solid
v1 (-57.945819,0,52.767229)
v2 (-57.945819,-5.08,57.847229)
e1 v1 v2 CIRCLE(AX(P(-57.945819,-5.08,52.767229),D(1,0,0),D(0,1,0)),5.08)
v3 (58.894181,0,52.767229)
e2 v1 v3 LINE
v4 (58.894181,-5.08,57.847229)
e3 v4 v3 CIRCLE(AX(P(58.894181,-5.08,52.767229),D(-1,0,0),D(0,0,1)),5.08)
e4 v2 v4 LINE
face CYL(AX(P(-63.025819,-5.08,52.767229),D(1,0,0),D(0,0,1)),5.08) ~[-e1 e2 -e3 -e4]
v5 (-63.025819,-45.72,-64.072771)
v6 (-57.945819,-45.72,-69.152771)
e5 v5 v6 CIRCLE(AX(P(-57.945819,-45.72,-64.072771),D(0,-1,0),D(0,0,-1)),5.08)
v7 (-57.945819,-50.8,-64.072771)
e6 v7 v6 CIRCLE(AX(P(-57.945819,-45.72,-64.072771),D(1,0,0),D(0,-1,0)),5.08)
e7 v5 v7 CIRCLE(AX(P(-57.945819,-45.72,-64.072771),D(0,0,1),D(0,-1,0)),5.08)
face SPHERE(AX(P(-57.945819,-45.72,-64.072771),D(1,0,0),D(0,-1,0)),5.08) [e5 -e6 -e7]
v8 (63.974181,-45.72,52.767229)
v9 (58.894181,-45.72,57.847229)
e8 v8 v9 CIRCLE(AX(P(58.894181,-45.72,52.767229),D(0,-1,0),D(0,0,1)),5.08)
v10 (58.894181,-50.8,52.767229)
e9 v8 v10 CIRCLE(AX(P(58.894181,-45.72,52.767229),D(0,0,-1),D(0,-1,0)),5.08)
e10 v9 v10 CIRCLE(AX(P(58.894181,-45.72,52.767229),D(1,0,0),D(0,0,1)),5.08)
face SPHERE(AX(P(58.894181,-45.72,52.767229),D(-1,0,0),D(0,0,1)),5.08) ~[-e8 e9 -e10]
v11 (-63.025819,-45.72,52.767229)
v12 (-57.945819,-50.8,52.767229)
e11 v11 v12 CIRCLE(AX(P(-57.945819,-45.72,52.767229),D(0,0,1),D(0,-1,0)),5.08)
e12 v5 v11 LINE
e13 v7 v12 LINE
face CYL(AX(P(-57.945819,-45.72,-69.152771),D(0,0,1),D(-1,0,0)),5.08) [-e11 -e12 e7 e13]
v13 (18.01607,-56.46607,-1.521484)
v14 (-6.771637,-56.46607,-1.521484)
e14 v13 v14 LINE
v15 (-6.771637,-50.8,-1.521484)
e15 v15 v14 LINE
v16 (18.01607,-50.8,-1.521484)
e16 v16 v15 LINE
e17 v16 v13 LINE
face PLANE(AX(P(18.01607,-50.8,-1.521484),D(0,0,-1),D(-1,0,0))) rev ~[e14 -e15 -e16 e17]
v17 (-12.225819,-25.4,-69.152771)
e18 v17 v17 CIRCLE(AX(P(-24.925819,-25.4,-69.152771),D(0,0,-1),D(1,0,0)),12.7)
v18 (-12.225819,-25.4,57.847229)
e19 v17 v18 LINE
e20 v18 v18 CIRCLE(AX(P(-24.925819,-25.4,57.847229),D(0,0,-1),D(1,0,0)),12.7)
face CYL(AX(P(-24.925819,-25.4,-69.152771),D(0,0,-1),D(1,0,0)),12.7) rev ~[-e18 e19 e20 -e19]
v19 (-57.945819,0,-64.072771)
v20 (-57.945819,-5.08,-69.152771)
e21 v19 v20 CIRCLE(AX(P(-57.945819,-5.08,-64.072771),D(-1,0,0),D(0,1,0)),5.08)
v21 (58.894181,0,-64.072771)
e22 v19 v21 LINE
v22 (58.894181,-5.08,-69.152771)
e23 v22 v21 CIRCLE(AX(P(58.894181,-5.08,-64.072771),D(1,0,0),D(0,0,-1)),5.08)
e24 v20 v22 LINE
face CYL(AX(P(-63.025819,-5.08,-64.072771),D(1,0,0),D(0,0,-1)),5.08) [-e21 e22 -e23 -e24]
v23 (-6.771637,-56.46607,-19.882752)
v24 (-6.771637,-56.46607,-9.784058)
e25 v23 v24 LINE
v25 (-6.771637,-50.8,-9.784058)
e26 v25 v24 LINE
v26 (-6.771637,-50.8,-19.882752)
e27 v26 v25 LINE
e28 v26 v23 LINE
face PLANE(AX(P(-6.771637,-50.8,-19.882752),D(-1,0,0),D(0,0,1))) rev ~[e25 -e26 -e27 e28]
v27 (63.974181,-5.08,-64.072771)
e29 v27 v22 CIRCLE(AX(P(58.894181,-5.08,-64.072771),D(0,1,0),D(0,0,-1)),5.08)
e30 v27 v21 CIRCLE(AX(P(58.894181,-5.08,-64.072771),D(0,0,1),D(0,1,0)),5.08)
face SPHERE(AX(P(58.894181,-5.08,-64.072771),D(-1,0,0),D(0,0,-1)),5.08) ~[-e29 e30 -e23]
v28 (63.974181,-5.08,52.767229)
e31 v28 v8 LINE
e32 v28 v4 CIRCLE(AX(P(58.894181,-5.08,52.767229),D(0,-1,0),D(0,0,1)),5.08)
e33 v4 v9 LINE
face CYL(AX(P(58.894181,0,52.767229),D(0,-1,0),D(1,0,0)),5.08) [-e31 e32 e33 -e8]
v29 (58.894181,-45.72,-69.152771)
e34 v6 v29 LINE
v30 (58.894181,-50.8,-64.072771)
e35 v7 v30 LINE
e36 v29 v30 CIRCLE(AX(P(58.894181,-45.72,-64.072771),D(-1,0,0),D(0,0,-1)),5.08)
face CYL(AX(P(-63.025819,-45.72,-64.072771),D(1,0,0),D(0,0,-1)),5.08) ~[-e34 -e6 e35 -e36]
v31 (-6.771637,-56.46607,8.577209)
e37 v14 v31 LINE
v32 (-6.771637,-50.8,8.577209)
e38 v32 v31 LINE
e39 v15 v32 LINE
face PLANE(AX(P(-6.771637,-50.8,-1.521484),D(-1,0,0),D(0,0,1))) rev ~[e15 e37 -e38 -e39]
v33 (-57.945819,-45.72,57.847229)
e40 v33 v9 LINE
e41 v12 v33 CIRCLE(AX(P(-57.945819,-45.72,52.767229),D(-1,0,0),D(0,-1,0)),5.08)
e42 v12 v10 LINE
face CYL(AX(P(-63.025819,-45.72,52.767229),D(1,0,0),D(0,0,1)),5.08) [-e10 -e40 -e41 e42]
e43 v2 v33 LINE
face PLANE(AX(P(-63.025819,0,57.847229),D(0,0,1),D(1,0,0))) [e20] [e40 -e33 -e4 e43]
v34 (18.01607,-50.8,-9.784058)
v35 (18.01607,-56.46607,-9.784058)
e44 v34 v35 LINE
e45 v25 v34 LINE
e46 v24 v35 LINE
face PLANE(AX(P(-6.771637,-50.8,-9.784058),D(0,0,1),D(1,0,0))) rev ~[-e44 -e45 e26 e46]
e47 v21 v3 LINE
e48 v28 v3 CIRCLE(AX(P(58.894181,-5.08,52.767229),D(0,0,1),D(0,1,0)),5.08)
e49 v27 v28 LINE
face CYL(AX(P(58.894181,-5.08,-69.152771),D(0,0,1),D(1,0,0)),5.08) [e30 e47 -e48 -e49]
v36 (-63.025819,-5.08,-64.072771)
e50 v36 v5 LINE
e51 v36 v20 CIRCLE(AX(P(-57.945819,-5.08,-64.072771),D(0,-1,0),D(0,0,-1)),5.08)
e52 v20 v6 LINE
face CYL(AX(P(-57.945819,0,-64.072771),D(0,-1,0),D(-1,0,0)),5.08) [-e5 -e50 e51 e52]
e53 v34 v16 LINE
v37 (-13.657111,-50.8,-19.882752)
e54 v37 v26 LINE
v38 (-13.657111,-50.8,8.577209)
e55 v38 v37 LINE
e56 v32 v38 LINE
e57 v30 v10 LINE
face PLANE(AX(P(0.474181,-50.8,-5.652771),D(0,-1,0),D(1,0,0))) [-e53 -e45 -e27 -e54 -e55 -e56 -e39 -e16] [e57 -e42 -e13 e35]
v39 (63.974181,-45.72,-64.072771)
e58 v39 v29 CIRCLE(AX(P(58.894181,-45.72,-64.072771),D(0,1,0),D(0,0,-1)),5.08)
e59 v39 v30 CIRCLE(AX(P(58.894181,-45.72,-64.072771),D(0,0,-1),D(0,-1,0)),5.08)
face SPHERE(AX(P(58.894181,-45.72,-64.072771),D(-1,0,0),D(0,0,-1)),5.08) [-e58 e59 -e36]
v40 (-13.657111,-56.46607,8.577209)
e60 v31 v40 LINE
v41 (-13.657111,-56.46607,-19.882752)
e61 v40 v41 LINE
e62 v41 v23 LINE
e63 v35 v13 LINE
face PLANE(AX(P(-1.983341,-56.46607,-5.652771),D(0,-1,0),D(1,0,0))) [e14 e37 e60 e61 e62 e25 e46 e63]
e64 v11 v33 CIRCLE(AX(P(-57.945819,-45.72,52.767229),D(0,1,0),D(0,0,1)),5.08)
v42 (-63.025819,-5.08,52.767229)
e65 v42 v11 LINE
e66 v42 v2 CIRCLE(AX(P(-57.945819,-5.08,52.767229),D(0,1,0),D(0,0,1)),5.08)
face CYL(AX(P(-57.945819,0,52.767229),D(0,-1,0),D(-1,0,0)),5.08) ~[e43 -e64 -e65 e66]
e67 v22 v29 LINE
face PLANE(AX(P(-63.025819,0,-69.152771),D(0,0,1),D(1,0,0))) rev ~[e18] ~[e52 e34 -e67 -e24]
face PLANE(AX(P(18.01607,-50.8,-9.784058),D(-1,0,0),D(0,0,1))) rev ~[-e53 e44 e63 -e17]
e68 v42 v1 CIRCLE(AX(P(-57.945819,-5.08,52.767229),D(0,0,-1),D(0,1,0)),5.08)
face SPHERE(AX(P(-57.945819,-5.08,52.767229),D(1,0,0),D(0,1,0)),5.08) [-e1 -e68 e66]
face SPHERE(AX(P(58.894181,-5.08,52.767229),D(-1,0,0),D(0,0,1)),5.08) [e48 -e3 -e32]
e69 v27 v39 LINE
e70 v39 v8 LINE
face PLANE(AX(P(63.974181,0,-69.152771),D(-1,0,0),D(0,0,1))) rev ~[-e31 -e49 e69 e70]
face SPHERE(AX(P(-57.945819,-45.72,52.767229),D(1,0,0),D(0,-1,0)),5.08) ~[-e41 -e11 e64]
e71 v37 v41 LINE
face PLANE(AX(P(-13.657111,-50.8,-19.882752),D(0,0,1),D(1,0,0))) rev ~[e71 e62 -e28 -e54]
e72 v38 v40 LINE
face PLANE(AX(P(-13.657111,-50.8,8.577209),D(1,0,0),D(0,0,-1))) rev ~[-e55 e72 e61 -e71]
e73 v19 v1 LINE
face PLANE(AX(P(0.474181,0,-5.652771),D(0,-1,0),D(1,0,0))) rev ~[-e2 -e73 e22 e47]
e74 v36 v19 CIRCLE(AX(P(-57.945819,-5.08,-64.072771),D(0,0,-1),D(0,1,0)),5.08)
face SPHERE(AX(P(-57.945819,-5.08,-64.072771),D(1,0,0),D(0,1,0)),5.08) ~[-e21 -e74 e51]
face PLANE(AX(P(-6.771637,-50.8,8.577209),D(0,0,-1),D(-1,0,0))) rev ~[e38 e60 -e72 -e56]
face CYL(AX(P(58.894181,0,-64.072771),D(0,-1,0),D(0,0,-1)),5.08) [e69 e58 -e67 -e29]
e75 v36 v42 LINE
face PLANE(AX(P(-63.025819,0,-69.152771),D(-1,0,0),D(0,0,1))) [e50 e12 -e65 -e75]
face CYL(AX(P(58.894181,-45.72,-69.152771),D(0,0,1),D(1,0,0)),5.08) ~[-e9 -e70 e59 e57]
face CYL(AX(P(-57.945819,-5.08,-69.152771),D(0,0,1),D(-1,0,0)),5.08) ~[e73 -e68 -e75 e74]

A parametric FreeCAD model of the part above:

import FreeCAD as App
import Part
import Sketcher
from FreeCAD import Vector
Q = App.Units.Quantity

doc = App.newDocument("Part")
params = doc.addObject("Spreadsheet::Sheet", "Params")
for row, (alias, value) in enumerate([
    ("sketch1_width", "5 in"),
    ("pad1_length", "2 in"),
    ("fillet_radius", "0.2 in"),
    ("pad2_length", "5.66607 mm"),
    ("sketch3_diameter", "1 in"),
], start=1):
    params.set(f"A{row}", alias)
    params.set(f"B{row}", "=" + value)
    params.setAlias(f"B{row}", alias)

body = doc.addObject("PartDesign::Body", "Body")

sketch1 = body.newObject("Sketcher::SketchObject", "Sketch")
sketch1.AttachmentSupport = (doc.getObject("XZ_Plane"), [""])
sketch1.MapMode = "FlatFace"
sketch1.addGeometry([
    Part.LineSegment(Vector(-63.025819, 57.847229, 0), Vector(-63.025819, -69.152771, 0)),
    Part.LineSegment(Vector(-63.025819, -69.152771, 0), Vector(63.974181, -69.152771, 0)),
    Part.LineSegment(Vector(63.974181, -69.152771, 0), Vector(63.974181, 57.847229, 0)),
    Part.LineSegment(Vector(63.974181, 57.847229, 0), Vector(-63.025819, 57.847229, 0)),
], False)
sketch1.addConstraint([
    Sketcher.Constraint("Coincident", 0, 2, 1, 1),
    Sketcher.Constraint("Coincident", 1, 2, 2, 1),
    Sketcher.Constraint("Coincident", 2, 2, 3, 1),
    Sketcher.Constraint("Coincident", 3, 2, 0, 1),
    Sketcher.Constraint("Vertical", 0),
    Sketcher.Constraint("Horizontal", 1),
    Sketcher.Constraint("Vertical", 2),
    Sketcher.Constraint("Horizontal", 3),
    Sketcher.Constraint("Equal", 3, 0),
    Sketcher.Constraint("DistanceX", 1, 1, 1, 2, Q("5 in")),
    Sketcher.Constraint("DistanceX", 0, 2, -1, 1, Q("63.025819 mm")),
    Sketcher.Constraint("DistanceY", 0, 2, -1, 1, Q("69.152771 mm")),
])
sketch1.setExpression("Constraints[9]", "Params.sketch1_width")
pad1 = body.newObject("PartDesign::Pad", "Pad")
pad1.Profile = sketch1
pad1.setExpression("Length", "Params.pad1_length")
doc.recompute()

fillet = body.newObject("PartDesign::Fillet", "Fillet")
fillet.Base = (pad1, ["Edge1"])
fillet.UseAllEdges = True
fillet.setExpression("Radius", "Params.fillet_radius")

sketch2 = body.newObject("Sketcher::SketchObject", "Sketch001")
sketch2.AttachmentSupport = (doc.getObject("XZ_Plane"), [""])
sketch2.MapMode = "FlatFace"
sketch2.AttachmentOffset = App.Placement(Vector(0, 0, 2 * 25.4), App.Rotation())
sketch2.addGeometry([
    Part.LineSegment(Vector(-13.657111, 8.577209, 0), Vector(-13.657111, -19.882752, 0)),
    Part.LineSegment(Vector(-13.657111, -19.882752, 0), Vector(-6.771637, -19.882752, 0)),
    Part.LineSegment(Vector(-6.771637, -19.882752, 0), Vector(-6.771637, -9.784058, 0)),
    Part.LineSegment(Vector(-6.771637, -9.784058, 0), Vector(18.01607, -9.784058, 0)),
    Part.LineSegment(Vector(18.01607, -9.784058, 0), Vector(18.01607, -1.521484, 0)),
    Part.LineSegment(Vector(18.01607, -1.521484, 0), Vector(-6.771637, -1.521484, 0)),
    Part.LineSegment(Vector(-6.771637, -1.521484, 0), Vector(-6.771637, 8.577209, 0)),
    Part.LineSegment(Vector(-6.771637, 8.577209, 0), Vector(-13.657111, 8.577209, 0)),
], False)
sketch2.addConstraint([
    Sketcher.Constraint("Coincident", 0, 2, 1, 1),
    Sketcher.Constraint("Coincident", 1, 2, 2, 1),
    Sketcher.Constraint("Coincident", 2, 2, 3, 1),
    Sketcher.Constraint("Coincident", 3, 2, 4, 1),
    Sketcher.Constraint("Coincident", 4, 2, 5, 1),
    Sketcher.Constraint("Coincident", 5, 2, 6, 1),
    Sketcher.Constraint("Coincident", 6, 2, 7, 1),
    Sketcher.Constraint("Coincident", 7, 2, 0, 1),
    Sketcher.Constraint("Vertical", 0),
    Sketcher.Constraint("Horizontal", 1),
    Sketcher.Constraint("Vertical", 2),
    Sketcher.Constraint("Horizontal", 3),
    Sketcher.Constraint("Vertical", 4),
    Sketcher.Constraint("Horizontal", 5),
    Sketcher.Constraint("Vertical", 6),
    Sketcher.Constraint("Horizontal", 7),
    Sketcher.Constraint("Vertical", 2, 2, 5, 2),
    Sketcher.Constraint("Equal", 2, 6),
    Sketcher.Constraint("DistanceX", 1, 2, -1, 1, Q("0.2665999 in")),
    Sketcher.Constraint("DistanceY", 0, 2, 0, 1, Q("28.459961 mm")),
    Sketcher.Constraint("DistanceX", 1, 1, 1, 2, Q("6.885475 mm")),
    Sketcher.Constraint("DistanceX", 3, 1, 3, 2, Q("24.787707 mm")),
    Sketcher.Constraint("DistanceY", 2, 1, 2, 2, Q("10.098694 mm")),
    Sketcher.Constraint("DistanceY", 0, 2, -1, 1, Q("19.882752 mm")),
])
pad2 = body.newObject("PartDesign::Pad", "Pad001")
pad2.Profile = sketch2
pad2.setExpression("Length", "Params.pad2_length")

sketch3 = body.newObject("Sketcher::SketchObject", "Sketch002")
sketch3.AttachmentSupport = (doc.getObject("XY_Plane"), [""])
sketch3.MapMode = "FlatFace"
sketch3.AttachmentOffset = App.Placement(Vector(0, 0, -69.152771), App.Rotation())
sketch3.addGeometry(Part.Circle(Vector(-24.925819, -25.4, 0), Vector(0, 0, 1), 12.7), False)
sketch3.addConstraint([
    Sketcher.Constraint("Diameter", 0, Q("1 in")),
    Sketcher.Constraint("DistanceY", 0, 3, -1, 1, Q("1 in")),
    Sketcher.Constraint("DistanceX", 0, 3, -1, 1, Q("24.925819 mm")),
])
sketch3.setExpression("Constraints[0]", "Params.sketch3_diameter")
pocket1 = body.newObject("PartDesign::Pocket", "Pocket")
pocket1.Profile = sketch3
pocket1.Type = "ThroughAll"
pocket1.Reversed = True

doc.recompute()
